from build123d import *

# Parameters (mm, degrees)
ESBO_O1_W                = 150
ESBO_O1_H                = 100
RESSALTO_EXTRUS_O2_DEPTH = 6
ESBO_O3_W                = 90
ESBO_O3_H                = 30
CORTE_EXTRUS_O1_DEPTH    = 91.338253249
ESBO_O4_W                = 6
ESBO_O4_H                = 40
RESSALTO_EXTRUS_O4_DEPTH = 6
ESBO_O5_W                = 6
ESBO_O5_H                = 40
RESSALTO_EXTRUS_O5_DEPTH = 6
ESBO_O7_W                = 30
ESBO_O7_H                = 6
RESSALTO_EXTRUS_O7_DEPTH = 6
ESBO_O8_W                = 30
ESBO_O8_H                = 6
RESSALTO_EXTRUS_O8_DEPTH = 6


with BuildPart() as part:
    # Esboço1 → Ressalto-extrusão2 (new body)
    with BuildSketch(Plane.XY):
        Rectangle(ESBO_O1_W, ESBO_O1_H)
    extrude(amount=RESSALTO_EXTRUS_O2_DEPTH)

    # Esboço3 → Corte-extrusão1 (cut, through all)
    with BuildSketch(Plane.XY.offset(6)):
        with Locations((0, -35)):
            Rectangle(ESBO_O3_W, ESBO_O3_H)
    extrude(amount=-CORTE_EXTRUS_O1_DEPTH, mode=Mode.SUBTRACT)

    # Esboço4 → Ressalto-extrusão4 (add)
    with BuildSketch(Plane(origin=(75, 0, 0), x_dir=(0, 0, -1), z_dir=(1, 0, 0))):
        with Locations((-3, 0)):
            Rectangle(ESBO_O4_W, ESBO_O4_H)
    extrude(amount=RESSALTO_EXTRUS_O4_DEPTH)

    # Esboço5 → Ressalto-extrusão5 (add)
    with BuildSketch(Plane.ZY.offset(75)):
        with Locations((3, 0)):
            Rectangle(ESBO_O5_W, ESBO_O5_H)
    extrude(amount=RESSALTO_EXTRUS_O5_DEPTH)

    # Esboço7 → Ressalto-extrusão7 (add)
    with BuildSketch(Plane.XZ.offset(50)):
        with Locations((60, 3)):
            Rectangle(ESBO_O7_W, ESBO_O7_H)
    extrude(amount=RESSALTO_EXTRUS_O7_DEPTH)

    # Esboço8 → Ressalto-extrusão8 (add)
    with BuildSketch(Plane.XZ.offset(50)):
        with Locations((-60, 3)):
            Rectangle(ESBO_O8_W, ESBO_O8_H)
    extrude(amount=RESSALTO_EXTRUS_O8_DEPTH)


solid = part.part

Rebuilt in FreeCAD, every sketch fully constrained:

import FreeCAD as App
import Part
import Sketcher


def add_polygon(sketch, points):
    """Adds a closed chain of lines whose ends are joined by coincident constraints."""
    first, n = sketch.GeometryCount, len(points)
    for a, b in zip(points, points[1:] + points[:1]):
        sketch.addGeometry(Part.LineSegment(App.Vector(*a, 0), App.Vector(*b, 0)), False)
    for i in range(n):
        sketch.addConstraint(Sketcher.Constraint("Coincident", first + i, 2, first + (i + 1) % n, 1))

doc = App.newDocument("Part")
body = doc.addObject("PartDesign::Body", "Body")

# Sketch on XY plane
sketch1 = doc.addObject("Sketcher::SketchObject", "Sketch")
body.addObject(sketch1)
sketch1.AttachmentSupport = (doc.XY_Plane, [""])
sketch1.MapMode = "FlatFace"
add_polygon(sketch1, [(-75, 50), (-75, -50), (75, -50), (75, 50)])  # lines 0-3
sketch1.addConstraint([
    Sketcher.Constraint("Vertical", 0),
    Sketcher.Constraint("Horizontal", 1),
    Sketcher.Constraint("Vertical", 2),
    Sketcher.Constraint("Horizontal", 3),
    Sketcher.Constraint("Symmetric", 0, 2, 2, 2, -1, 1),
    Sketcher.Constraint("DistanceX", 1, 1, 1, 2, 150.0),
    Sketcher.Constraint("DistanceY", 0, 2, 0, 1, 100.0),
])
pad1 = doc.addObject("PartDesign::Pad", "Pad")
body.addObject(pad1)
pad1.Profile = sketch1
pad1.Length = 6

# Sketch on XY plane
sketch2 = doc.addObject("Sketcher::SketchObject", "Sketch001")
body.addObject(sketch2)
sketch2.AttachmentSupport = (doc.XY_Plane, [""])
sketch2.MapMode = "FlatFace"
sketch2.AttachmentOffset = App.Placement(App.Vector(0, 0, 6), App.Rotation())
add_polygon(sketch2, [(-45, -20), (-45, -50), (45, -50), (45, -20)])  # lines 0-3
sketch2.addConstraint([
    Sketcher.Constraint("Vertical", 0),
    Sketcher.Constraint("Horizontal", 1),
    Sketcher.Constraint("Vertical", 2),
    Sketcher.Constraint("Horizontal", 3),
    Sketcher.Constraint("DistanceX", 1, 1, 1, 2, 90.0),
    Sketcher.Constraint("DistanceY", 0, 2, 0, 1, 30.0),
    Sketcher.Constraint("DistanceX", 0, 2, -1, 1, 45.0),
    Sketcher.Constraint("DistanceY", 0, 2, -1, 1, 50.0),
])
pocket1 = doc.addObject("PartDesign::Pocket", "Pocket")
body.addObject(pocket1)
pocket1.Profile = sketch2
pocket1.Type = "ThroughAll"

# Sketch on YZ plane
sketch3 = doc.addObject("Sketcher::SketchObject", "Sketch002")
body.addObject(sketch3)
sketch3.AttachmentSupport = (doc.YZ_Plane, [""])
sketch3.MapMode = "FlatFace"
sketch3.AttachmentOffset = App.Placement(App.Vector(0, 0, 75), App.Rotation())
add_polygon(sketch3, [(20, 6), (-20, 6), (-20, 0), (20, 0)])  # lines 0-3
sketch3.addConstraint([
    Sketcher.Constraint("Horizontal", 0),
    Sketcher.Constraint("Vertical", 1),
    Sketcher.Constraint("Horizontal", 2),
    Sketcher.Constraint("Vertical", 3),
    Sketcher.Constraint("Symmetric", 1, 2, 2, 2, -1, 1),
    Sketcher.Constraint("DistanceX", 0, 2, 0, 1, 40.0),
    Sketcher.Constraint("DistanceY", 1, 2, 1, 1, 6.0),
])
pad2 = doc.addObject("PartDesign::Pad", "Pad001")
body.addObject(pad2)
pad2.Profile = sketch3
pad2.Length = 6

# Sketch on YZ plane
sketch4 = doc.addObject("Sketcher::SketchObject", "Sketch003")
body.addObject(sketch4)
sketch4.AttachmentSupport = (doc.YZ_Plane, [""])
sketch4.MapMode = "FlatFace"
sketch4.AttachmentOffset = App.Placement(App.Vector(0, 0, -75), App.Rotation())
add_polygon(sketch4, [(20, 0), (-20, 0), (-20, 6), (20, 6)])  # lines 0-3
sketch4.addConstraint([
    Sketcher.Constraint("Horizontal", 0),
    Sketcher.Constraint("Vertical", 1),
    Sketcher.Constraint("Horizontal", 2),
    Sketcher.Constraint("Vertical", 3),
    Sketcher.Constraint("Symmetric", 0, 2, 3, 2, -1, 1),
    Sketcher.Constraint("DistanceX", 0, 2, 0, 1, 40.0),
    Sketcher.Constraint("DistanceY", 1, 1, 1, 2, 6.0),
])
pad3 = doc.addObject("PartDesign::Pad", "Pad002")
body.addObject(pad3)
pad3.Profile = sketch4
pad3.Length = 6
pad3.Reversed = True

# Sketch on XZ plane
sketch5 = doc.addObject("Sketcher::SketchObject", "Sketch004")
body.addObject(sketch5)
sketch5.AttachmentSupport = (doc.XZ_Plane, [""])
sketch5.MapMode = "FlatFace"
sketch5.AttachmentOffset = App.Placement(App.Vector(0, 0, 50), App.Rotation())
add_polygon(sketch5, [(45, 6), (45, 0), (75, 0), (75, 6)])  # lines 0-3
sketch5.addConstraint([
    Sketcher.Constraint("Vertical", 0),
    Sketcher.Constraint("Horizontal", 1),
    Sketcher.Constraint("Vertical", 2),
    Sketcher.Constraint("Horizontal", 3),
    Sketcher.Constraint("PointOnObject", 0, 2, -1),
    Sketcher.Constraint("DistanceX", 1, 1, 1, 2, 30.0),
    Sketcher.Constraint("DistanceY", 0, 2, 0, 1, 6.0),
    Sketcher.Constraint("DistanceX", -1, 1, 0, 2, 45.0),
])
pad4 = doc.addObject("PartDesign::Pad", "Pad003")
body.addObject(pad4)
pad4.Profile = sketch5
pad4.Length = 6

# Sketch on XZ plane
sketch6 = doc.addObject("Sketcher::SketchObject", "Sketch005")
body.addObject(sketch6)
sketch6.AttachmentSupport = (doc.XZ_Plane, [""])
sketch6.MapMode = "FlatFace"
sketch6.AttachmentOffset = App.Placement(App.Vector(0, 0, 50), App.Rotation())
add_polygon(sketch6, [(-75, 6), (-75, 0), (-45, 0), (-45, 6)])  # lines 0-3
sketch6.addConstraint([
    Sketcher.Constraint("Vertical", 0),
    Sketcher.Constraint("Horizontal", 1),
    Sketcher.Constraint("Vertical", 2),
    Sketcher.Constraint("Horizontal", 3),
    Sketcher.Constraint("PointOnObject", 0, 2, -1),
    Sketcher.Constraint("DistanceX", 1, 1, 1, 2, 30.0),
    Sketcher.Constraint("DistanceY", 0, 2, 0, 1, 6.0),
    Sketcher.Constraint("DistanceX", 0, 2, -1, 1, 75.0),
])
pad5 = doc.addObject("PartDesign::Pad", "Pad004")
body.addObject(pad5)
pad5.Profile = sketch6
pad5.Length = 6

doc.recompute()
